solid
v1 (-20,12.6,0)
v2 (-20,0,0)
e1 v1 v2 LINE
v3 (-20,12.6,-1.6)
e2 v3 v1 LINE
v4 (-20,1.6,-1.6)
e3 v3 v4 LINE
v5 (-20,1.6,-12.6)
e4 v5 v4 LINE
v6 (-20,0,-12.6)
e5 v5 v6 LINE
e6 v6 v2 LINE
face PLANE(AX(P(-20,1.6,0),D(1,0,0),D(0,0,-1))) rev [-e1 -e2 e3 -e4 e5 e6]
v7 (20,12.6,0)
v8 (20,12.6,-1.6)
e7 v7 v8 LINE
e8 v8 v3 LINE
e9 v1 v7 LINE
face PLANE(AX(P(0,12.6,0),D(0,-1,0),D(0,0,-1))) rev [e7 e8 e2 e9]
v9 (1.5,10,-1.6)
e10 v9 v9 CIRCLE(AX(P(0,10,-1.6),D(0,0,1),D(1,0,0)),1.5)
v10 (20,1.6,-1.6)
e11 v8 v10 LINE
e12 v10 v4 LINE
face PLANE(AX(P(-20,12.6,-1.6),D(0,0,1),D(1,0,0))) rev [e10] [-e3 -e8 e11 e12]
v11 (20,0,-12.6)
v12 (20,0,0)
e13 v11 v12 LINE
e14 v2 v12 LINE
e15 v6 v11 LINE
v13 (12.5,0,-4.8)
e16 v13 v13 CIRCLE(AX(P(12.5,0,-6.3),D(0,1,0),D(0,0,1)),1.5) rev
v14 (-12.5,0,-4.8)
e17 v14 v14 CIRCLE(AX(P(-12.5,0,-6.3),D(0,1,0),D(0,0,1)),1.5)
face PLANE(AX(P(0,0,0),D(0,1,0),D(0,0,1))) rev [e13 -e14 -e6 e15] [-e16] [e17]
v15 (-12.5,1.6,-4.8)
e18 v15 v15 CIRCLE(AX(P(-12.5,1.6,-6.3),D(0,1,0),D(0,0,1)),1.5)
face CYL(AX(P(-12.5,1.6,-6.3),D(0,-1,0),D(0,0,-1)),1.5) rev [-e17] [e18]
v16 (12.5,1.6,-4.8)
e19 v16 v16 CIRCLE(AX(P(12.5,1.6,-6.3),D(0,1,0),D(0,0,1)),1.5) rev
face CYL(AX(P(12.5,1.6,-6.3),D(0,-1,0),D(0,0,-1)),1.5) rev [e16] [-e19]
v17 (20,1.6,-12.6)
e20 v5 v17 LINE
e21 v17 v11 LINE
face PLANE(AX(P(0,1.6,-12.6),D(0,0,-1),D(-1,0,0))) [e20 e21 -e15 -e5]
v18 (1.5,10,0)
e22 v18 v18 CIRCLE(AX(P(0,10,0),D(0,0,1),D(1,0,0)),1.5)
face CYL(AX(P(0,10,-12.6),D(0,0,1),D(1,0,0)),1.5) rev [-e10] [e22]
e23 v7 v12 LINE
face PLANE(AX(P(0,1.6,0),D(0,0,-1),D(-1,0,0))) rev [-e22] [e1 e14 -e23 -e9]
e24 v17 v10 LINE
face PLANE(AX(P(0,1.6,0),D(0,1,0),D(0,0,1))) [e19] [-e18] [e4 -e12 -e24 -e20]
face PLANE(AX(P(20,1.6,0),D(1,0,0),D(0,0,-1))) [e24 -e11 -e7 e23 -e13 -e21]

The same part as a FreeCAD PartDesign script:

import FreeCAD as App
import Part
import Sketcher

doc = App.newDocument("Part")
body = doc.addObject("PartDesign::Body", "Body")

sketch1 = body.newObject("Sketcher::SketchObject", "Sketch")
sketch1.AttachmentSupport = (doc.getObject("XZ_Plane"), [""])
sketch1.MapMode = "FlatFace"
sketch1.addGeometry([
    Part.LineSegment(App.Vector(-20, 0, 0), App.Vector(20, 0, 0)),
    Part.LineSegment(App.Vector(20, 0, 0), App.Vector(20, -12.6, 0)),
    Part.LineSegment(App.Vector(20, -12.6, 0), App.Vector(-20, -12.6, 0)),
    Part.LineSegment(App.Vector(-20, -12.6, 0), App.Vector(-20, 0, 0)),
    Part.Circle(App.Vector(-12.5, -6.3, 0), App.Vector(0, 0, 1), 1.5),
    Part.Circle(App.Vector(12.5, -6.3, 0), App.Vector(0, 0, 1), 1.5),
], False)
sketch1.addConstraint([
    Sketcher.Constraint("Coincident", 0, 2, 1, 1),
    Sketcher.Constraint("Coincident", 1, 2, 2, 1),
    Sketcher.Constraint("Coincident", 2, 2, 3, 1),
    Sketcher.Constraint("Coincident", 3, 2, 0, 1),
    Sketcher.Constraint("Horizontal", 0),
    Sketcher.Constraint("Vertical", 1),
    Sketcher.Constraint("Horizontal", 2),
    Sketcher.Constraint("Vertical", 3),
    Sketcher.Constraint("Equal", 4, 5),
    Sketcher.Constraint("Symmetric", 0, 2, 3, 2, -1, 1),
    Sketcher.Constraint("Symmetric", 4, 3, 5, 3, -2),
    Sketcher.Constraint("Diameter", 4, 3.0),
    Sketcher.Constraint("DistanceX", 0, 1, 0, 2, 40.0),
    Sketcher.Constraint("DistanceY", 1, 2, 1, 1, 12.6),
    Sketcher.Constraint("DistanceX", 4, 3, 5, 3, 25.0),
    Sketcher.Constraint("DistanceY", 4, 3, -1, 1, 6.3),
])
pad1 = body.newObject("PartDesign::Pad", "Pad")
pad1.Profile = sketch1
pad1.Length = 1.6
pad1.Reversed = True

sketch2 = body.newObject("Sketcher::SketchObject", "Sketch001")
sketch2.AttachmentSupport = (doc.getObject("XZ_Plane"), [""])
sketch2.MapMode = "FlatFace"
sketch2.AttachmentOffset = App.Placement(App.Vector(0, 0, -1.6), App.Rotation())
sketch2.addGeometry([
    Part.LineSegment(App.Vector(-20, -1.6, 0), App.Vector(-20, 0, 0)),
    Part.LineSegment(App.Vector(-20, 0, 0), App.Vector(20, 0, 0)),
    Part.LineSegment(App.Vector(20, 0, 0), App.Vector(20, -1.6, 0)),
    Part.LineSegment(App.Vector(20, -1.6, 0), App.Vector(-20, -1.6, 0)),
], False)
sketch2.addConstraint([
    Sketcher.Constraint("Coincident", 0, 2, 1, 1),
    Sketcher.Constraint("Coincident", 1, 2, 2, 1),
    Sketcher.Constraint("Coincident", 2, 2, 3, 1),
    Sketcher.Constraint("Coincident", 3, 2, 0, 1),
    Sketcher.Constraint("Vertical", 0),
    Sketcher.Constraint("Horizontal", 1),
    Sketcher.Constraint("Vertical", 2),
    Sketcher.Constraint("Horizontal", 3),
    Sketcher.Constraint("Symmetric", 0, 2, 1, 2, -1, 1),
    Sketcher.Constraint("DistanceX", 1, 1, 1, 2, 40.0),
    Sketcher.Constraint("DistanceY", 0, 1, 0, 2, 1.6),
])
pad2 = body.newObject("PartDesign::Pad", "Pad001")
pad2.Profile = sketch2
pad2.Length = 11
pad2.Reversed = True

sketch3 = body.newObject("Sketcher::SketchObject", "Sketch002")
sketch3.AttachmentSupport = (doc.getObject("XY_Plane"), [""])
sketch3.MapMode = "FlatFace"
sketch3.addGeometry(Part.Circle(App.Vector(0, 10, 0), App.Vector(0, 0, 1), 1.5), False)
sketch3.addConstraint([
    Sketcher.Constraint("PointOnObject", 0, 3, -2),
    Sketcher.Constraint("Diameter", 0, 3.0),
    Sketcher.Constraint("DistanceY", -1, 1, 0, 3, 10.0),
])
pocket1 = body.newObject("PartDesign::Pocket", "Pocket")
pocket1.Profile = sketch3
pocket1.Type = "ThroughAll"

doc.recompute()
